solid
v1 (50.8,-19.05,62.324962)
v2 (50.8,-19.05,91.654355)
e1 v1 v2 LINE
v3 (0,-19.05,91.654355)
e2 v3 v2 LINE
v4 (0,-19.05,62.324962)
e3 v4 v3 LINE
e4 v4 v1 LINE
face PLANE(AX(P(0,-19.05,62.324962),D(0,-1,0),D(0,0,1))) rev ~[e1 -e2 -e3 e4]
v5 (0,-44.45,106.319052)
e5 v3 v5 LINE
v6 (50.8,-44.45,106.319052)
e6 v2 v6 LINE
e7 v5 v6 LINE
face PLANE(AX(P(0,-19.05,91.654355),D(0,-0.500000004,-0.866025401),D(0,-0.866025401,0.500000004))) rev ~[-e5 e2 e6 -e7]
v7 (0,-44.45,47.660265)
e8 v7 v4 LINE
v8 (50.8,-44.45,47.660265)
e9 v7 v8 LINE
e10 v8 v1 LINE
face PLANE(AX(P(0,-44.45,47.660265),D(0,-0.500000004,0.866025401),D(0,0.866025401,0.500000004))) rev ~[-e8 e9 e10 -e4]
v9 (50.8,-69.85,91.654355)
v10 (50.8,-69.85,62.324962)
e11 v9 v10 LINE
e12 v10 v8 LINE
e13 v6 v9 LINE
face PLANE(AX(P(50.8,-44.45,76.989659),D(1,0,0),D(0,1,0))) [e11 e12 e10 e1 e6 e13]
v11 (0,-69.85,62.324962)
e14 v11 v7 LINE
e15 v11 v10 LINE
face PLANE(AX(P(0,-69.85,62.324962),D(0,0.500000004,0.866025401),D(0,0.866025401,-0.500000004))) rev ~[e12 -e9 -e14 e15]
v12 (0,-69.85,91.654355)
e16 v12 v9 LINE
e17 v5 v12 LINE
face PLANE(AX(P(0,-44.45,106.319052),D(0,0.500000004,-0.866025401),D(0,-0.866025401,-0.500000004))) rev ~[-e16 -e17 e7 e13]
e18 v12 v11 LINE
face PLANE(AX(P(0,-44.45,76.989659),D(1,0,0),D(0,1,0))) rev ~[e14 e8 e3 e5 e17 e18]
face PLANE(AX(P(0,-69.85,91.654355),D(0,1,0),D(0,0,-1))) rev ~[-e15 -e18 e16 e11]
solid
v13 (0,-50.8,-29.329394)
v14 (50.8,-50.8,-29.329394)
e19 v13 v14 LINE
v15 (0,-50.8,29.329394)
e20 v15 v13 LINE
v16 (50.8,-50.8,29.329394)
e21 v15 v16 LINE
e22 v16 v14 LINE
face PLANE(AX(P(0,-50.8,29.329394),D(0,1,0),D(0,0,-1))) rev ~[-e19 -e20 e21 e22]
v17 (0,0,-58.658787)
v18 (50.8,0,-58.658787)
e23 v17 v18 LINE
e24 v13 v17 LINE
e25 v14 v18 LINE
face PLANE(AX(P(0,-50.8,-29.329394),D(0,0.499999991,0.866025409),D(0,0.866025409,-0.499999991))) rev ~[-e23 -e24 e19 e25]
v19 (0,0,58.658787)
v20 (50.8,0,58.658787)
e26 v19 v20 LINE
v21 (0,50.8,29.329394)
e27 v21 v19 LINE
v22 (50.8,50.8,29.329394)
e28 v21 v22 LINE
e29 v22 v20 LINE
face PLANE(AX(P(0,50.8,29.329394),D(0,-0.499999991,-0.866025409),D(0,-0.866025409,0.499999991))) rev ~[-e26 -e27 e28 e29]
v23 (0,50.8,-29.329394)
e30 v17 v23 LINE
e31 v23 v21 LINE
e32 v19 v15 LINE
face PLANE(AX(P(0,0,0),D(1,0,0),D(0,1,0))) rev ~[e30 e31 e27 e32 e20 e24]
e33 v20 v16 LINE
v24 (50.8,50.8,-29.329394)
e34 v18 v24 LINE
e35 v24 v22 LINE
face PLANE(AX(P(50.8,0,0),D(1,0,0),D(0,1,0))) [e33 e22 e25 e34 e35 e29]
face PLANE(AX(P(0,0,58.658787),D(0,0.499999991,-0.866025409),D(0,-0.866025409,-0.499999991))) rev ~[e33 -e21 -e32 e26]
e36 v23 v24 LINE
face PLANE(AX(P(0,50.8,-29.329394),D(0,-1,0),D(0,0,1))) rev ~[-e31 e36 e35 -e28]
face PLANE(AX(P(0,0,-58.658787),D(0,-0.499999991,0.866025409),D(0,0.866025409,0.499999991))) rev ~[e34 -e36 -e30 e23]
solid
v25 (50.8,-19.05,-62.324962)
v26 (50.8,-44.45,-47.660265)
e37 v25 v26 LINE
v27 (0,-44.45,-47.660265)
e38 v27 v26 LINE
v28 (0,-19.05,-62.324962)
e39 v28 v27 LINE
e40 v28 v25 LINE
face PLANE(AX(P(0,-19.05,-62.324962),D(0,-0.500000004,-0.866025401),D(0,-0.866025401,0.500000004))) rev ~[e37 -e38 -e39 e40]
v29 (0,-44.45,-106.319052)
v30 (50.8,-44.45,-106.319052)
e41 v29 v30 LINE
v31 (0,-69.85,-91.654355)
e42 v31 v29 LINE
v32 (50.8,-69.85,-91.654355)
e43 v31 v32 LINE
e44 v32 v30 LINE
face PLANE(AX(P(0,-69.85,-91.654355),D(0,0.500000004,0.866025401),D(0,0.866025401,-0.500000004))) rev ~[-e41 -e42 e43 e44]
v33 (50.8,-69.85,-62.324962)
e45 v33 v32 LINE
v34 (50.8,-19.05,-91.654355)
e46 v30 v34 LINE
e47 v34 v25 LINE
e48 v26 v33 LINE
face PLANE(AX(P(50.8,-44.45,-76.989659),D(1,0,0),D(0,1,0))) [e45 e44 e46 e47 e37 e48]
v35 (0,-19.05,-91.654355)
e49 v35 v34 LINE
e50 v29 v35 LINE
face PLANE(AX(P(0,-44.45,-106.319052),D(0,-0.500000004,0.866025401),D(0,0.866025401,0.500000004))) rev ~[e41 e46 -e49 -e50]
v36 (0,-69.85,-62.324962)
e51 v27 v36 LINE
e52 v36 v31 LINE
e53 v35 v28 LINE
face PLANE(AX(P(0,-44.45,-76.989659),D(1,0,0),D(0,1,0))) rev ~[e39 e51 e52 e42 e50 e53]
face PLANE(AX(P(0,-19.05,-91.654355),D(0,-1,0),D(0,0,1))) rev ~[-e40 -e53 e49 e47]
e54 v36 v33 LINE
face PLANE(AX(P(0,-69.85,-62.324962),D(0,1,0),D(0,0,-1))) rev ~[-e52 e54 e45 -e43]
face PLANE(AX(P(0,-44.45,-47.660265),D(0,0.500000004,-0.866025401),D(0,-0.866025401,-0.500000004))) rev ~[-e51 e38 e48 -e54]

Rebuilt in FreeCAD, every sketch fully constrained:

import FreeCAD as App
import Part
import Sketcher

V = App.Vector
Q = App.Units.Quantity

doc = App.newDocument("Part")
body = doc.addObject("PartDesign::Body", "Body")
body.AllowCompound = True

# Sketch on YZ plane
sketch1 = doc.addObject("Sketcher::SketchObject", "Sketch")
body.addObject(sketch1)
sketch1.AttachmentSupport = (doc.YZ_Plane, [""])
sketch1.MapMode = "FlatFace"
sketch1.addGeometry([
    Part.LineSegment(V(51, 29, 0), V(0, 59, 0)),  # 0
    Part.LineSegment(V(0, 59, 0), V(-51, 29, 0)),  # 1
    Part.LineSegment(V(-51, 29, 0), V(-51, -29, 0)),  # 2
    Part.LineSegment(V(-51, -29, 0), V(0, -59, 0)),  # 3
    Part.LineSegment(V(0, -59, 0), V(51, -29, 0)),  # 4
    Part.LineSegment(V(51, -29, 0), V(51, 29, 0)),  # 5
    Part.LineSegment(V(-19, -62, 0), V(-44, -48, 0)),  # 6
    Part.LineSegment(V(-44, -48, 0), V(-70, -62, 0)),  # 7
    Part.LineSegment(V(-70, -62, 0), V(-70, -92, 0)),  # 8
    Part.LineSegment(V(-70, -92, 0), V(-44, -106, 0)),  # 9
    Part.LineSegment(V(-44, -106, 0), V(-19, -92, 0)),  # 10
    Part.LineSegment(V(-19, -92, 0), V(-19, -62, 0)),  # 11
    Part.LineSegment(V(-19, 92, 0), V(-44, 106, 0)),  # 12
    Part.LineSegment(V(-44, 106, 0), V(-70, 92, 0)),  # 13
    Part.LineSegment(V(-70, 92, 0), V(-70, 62, 0)),  # 14
    Part.LineSegment(V(-70, 62, 0), V(-44, 48, 0)),  # 15
    Part.LineSegment(V(-44, 48, 0), V(-19, 62, 0)),  # 16
    Part.LineSegment(V(-19, 62, 0), V(-19, 92, 0)),  # 17
], False)
sketch1.addConstraint([
    Sketcher.Constraint("Coincident", 0, 2, 1, 1),
    Sketcher.Constraint("Coincident", 1, 2, 2, 1),
    Sketcher.Constraint("Coincident", 2, 2, 3, 1),
    Sketcher.Constraint("Coincident", 3, 2, 4, 1),
    Sketcher.Constraint("Coincident", 4, 2, 5, 1),
    Sketcher.Constraint("Coincident", 5, 2, 0, 1),
    Sketcher.Constraint("Coincident", 6, 2, 7, 1),
    Sketcher.Constraint("Coincident", 7, 2, 8, 1),
    Sketcher.Constraint("Coincident", 8, 2, 9, 1),
    Sketcher.Constraint("Coincident", 9, 2, 10, 1),
    Sketcher.Constraint("Coincident", 10, 2, 11, 1),
    Sketcher.Constraint("Coincident", 11, 2, 6, 1),
    Sketcher.Constraint("Coincident", 12, 2, 13, 1),
    Sketcher.Constraint("Coincident", 13, 2, 14, 1),
    Sketcher.Constraint("Coincident", 14, 2, 15, 1),
    Sketcher.Constraint("Coincident", 15, 2, 16, 1),
    Sketcher.Constraint("Coincident", 16, 2, 17, 1),
    Sketcher.Constraint("Coincident", 17, 2, 12, 1),
    Sketcher.Constraint("Vertical", 2),
    Sketcher.Constraint("Vertical", 5),
    Sketcher.Constraint("Vertical", 8),
    Sketcher.Constraint("Vertical", 11),
    Sketcher.Constraint("Vertical", 14),
    Sketcher.Constraint("Vertical", 17),
    Sketcher.Constraint("Symmetric", 0, 2, 3, 2, -1, 1),
    Sketcher.Constraint("Symmetric", 1, 2, 4, 2, -1, 1),
    Sketcher.Constraint("Symmetric", 9, 2, 12, 2, -1),
    Sketcher.Constraint("Symmetric", 8, 2, 13, 2, -1),
    Sketcher.Constraint("Symmetric", 6, 2, 15, 2, -1),
    Sketcher.Constraint("Symmetric", 11, 2, 16, 2, -1),
    Sketcher.Constraint("PointOnObject", 0, 2, -2),
    Sketcher.Constraint("Parallel", 0, 3),
    Sketcher.Constraint("Parallel", 3, 6),
    Sketcher.Constraint("Parallel", 4, 7),
    Sketcher.Constraint("Parallel", 6, 9),
    Sketcher.Constraint("Parallel", 7, 10),
    Sketcher.Constraint("Parallel", 9, 12),
    Sketcher.Constraint("Parallel", 10, 13),
    Sketcher.Constraint("Parallel", 12, 15),
    Sketcher.Constraint("Horizontal", 8, 2, 10, 2),
    Sketcher.Constraint("Horizontal", 7, 2, 11, 2),
    Sketcher.Constraint("DistanceX", 1, 2, -1, 1, Q("2 in")),
    Sketcher.Constraint("Angle", 0, Q("150.000001 deg")),
    Sketcher.Constraint("DistanceX", 7, 2, 6, 2, Q("1 in")),
    Sketcher.Constraint("DistanceX", 6, 2, -1, 1, Q("1.75 in")),
    Sketcher.Constraint("DistanceY", 2, 2, 2, 1, Q("58.658788 mm")),
    Sketcher.Constraint("DistanceY", 8, 2, 8, 1, Q("29.329393 mm")),
    Sketcher.Constraint("DistanceY", 9, 2, -1, 1, Q("106.319052 mm")),
])
pad1 = doc.addObject("PartDesign::Pad", "Pad")
body.addObject(pad1)
pad1.Profile = sketch1
pad1.Length = Q("2 in")

doc.recompute()
